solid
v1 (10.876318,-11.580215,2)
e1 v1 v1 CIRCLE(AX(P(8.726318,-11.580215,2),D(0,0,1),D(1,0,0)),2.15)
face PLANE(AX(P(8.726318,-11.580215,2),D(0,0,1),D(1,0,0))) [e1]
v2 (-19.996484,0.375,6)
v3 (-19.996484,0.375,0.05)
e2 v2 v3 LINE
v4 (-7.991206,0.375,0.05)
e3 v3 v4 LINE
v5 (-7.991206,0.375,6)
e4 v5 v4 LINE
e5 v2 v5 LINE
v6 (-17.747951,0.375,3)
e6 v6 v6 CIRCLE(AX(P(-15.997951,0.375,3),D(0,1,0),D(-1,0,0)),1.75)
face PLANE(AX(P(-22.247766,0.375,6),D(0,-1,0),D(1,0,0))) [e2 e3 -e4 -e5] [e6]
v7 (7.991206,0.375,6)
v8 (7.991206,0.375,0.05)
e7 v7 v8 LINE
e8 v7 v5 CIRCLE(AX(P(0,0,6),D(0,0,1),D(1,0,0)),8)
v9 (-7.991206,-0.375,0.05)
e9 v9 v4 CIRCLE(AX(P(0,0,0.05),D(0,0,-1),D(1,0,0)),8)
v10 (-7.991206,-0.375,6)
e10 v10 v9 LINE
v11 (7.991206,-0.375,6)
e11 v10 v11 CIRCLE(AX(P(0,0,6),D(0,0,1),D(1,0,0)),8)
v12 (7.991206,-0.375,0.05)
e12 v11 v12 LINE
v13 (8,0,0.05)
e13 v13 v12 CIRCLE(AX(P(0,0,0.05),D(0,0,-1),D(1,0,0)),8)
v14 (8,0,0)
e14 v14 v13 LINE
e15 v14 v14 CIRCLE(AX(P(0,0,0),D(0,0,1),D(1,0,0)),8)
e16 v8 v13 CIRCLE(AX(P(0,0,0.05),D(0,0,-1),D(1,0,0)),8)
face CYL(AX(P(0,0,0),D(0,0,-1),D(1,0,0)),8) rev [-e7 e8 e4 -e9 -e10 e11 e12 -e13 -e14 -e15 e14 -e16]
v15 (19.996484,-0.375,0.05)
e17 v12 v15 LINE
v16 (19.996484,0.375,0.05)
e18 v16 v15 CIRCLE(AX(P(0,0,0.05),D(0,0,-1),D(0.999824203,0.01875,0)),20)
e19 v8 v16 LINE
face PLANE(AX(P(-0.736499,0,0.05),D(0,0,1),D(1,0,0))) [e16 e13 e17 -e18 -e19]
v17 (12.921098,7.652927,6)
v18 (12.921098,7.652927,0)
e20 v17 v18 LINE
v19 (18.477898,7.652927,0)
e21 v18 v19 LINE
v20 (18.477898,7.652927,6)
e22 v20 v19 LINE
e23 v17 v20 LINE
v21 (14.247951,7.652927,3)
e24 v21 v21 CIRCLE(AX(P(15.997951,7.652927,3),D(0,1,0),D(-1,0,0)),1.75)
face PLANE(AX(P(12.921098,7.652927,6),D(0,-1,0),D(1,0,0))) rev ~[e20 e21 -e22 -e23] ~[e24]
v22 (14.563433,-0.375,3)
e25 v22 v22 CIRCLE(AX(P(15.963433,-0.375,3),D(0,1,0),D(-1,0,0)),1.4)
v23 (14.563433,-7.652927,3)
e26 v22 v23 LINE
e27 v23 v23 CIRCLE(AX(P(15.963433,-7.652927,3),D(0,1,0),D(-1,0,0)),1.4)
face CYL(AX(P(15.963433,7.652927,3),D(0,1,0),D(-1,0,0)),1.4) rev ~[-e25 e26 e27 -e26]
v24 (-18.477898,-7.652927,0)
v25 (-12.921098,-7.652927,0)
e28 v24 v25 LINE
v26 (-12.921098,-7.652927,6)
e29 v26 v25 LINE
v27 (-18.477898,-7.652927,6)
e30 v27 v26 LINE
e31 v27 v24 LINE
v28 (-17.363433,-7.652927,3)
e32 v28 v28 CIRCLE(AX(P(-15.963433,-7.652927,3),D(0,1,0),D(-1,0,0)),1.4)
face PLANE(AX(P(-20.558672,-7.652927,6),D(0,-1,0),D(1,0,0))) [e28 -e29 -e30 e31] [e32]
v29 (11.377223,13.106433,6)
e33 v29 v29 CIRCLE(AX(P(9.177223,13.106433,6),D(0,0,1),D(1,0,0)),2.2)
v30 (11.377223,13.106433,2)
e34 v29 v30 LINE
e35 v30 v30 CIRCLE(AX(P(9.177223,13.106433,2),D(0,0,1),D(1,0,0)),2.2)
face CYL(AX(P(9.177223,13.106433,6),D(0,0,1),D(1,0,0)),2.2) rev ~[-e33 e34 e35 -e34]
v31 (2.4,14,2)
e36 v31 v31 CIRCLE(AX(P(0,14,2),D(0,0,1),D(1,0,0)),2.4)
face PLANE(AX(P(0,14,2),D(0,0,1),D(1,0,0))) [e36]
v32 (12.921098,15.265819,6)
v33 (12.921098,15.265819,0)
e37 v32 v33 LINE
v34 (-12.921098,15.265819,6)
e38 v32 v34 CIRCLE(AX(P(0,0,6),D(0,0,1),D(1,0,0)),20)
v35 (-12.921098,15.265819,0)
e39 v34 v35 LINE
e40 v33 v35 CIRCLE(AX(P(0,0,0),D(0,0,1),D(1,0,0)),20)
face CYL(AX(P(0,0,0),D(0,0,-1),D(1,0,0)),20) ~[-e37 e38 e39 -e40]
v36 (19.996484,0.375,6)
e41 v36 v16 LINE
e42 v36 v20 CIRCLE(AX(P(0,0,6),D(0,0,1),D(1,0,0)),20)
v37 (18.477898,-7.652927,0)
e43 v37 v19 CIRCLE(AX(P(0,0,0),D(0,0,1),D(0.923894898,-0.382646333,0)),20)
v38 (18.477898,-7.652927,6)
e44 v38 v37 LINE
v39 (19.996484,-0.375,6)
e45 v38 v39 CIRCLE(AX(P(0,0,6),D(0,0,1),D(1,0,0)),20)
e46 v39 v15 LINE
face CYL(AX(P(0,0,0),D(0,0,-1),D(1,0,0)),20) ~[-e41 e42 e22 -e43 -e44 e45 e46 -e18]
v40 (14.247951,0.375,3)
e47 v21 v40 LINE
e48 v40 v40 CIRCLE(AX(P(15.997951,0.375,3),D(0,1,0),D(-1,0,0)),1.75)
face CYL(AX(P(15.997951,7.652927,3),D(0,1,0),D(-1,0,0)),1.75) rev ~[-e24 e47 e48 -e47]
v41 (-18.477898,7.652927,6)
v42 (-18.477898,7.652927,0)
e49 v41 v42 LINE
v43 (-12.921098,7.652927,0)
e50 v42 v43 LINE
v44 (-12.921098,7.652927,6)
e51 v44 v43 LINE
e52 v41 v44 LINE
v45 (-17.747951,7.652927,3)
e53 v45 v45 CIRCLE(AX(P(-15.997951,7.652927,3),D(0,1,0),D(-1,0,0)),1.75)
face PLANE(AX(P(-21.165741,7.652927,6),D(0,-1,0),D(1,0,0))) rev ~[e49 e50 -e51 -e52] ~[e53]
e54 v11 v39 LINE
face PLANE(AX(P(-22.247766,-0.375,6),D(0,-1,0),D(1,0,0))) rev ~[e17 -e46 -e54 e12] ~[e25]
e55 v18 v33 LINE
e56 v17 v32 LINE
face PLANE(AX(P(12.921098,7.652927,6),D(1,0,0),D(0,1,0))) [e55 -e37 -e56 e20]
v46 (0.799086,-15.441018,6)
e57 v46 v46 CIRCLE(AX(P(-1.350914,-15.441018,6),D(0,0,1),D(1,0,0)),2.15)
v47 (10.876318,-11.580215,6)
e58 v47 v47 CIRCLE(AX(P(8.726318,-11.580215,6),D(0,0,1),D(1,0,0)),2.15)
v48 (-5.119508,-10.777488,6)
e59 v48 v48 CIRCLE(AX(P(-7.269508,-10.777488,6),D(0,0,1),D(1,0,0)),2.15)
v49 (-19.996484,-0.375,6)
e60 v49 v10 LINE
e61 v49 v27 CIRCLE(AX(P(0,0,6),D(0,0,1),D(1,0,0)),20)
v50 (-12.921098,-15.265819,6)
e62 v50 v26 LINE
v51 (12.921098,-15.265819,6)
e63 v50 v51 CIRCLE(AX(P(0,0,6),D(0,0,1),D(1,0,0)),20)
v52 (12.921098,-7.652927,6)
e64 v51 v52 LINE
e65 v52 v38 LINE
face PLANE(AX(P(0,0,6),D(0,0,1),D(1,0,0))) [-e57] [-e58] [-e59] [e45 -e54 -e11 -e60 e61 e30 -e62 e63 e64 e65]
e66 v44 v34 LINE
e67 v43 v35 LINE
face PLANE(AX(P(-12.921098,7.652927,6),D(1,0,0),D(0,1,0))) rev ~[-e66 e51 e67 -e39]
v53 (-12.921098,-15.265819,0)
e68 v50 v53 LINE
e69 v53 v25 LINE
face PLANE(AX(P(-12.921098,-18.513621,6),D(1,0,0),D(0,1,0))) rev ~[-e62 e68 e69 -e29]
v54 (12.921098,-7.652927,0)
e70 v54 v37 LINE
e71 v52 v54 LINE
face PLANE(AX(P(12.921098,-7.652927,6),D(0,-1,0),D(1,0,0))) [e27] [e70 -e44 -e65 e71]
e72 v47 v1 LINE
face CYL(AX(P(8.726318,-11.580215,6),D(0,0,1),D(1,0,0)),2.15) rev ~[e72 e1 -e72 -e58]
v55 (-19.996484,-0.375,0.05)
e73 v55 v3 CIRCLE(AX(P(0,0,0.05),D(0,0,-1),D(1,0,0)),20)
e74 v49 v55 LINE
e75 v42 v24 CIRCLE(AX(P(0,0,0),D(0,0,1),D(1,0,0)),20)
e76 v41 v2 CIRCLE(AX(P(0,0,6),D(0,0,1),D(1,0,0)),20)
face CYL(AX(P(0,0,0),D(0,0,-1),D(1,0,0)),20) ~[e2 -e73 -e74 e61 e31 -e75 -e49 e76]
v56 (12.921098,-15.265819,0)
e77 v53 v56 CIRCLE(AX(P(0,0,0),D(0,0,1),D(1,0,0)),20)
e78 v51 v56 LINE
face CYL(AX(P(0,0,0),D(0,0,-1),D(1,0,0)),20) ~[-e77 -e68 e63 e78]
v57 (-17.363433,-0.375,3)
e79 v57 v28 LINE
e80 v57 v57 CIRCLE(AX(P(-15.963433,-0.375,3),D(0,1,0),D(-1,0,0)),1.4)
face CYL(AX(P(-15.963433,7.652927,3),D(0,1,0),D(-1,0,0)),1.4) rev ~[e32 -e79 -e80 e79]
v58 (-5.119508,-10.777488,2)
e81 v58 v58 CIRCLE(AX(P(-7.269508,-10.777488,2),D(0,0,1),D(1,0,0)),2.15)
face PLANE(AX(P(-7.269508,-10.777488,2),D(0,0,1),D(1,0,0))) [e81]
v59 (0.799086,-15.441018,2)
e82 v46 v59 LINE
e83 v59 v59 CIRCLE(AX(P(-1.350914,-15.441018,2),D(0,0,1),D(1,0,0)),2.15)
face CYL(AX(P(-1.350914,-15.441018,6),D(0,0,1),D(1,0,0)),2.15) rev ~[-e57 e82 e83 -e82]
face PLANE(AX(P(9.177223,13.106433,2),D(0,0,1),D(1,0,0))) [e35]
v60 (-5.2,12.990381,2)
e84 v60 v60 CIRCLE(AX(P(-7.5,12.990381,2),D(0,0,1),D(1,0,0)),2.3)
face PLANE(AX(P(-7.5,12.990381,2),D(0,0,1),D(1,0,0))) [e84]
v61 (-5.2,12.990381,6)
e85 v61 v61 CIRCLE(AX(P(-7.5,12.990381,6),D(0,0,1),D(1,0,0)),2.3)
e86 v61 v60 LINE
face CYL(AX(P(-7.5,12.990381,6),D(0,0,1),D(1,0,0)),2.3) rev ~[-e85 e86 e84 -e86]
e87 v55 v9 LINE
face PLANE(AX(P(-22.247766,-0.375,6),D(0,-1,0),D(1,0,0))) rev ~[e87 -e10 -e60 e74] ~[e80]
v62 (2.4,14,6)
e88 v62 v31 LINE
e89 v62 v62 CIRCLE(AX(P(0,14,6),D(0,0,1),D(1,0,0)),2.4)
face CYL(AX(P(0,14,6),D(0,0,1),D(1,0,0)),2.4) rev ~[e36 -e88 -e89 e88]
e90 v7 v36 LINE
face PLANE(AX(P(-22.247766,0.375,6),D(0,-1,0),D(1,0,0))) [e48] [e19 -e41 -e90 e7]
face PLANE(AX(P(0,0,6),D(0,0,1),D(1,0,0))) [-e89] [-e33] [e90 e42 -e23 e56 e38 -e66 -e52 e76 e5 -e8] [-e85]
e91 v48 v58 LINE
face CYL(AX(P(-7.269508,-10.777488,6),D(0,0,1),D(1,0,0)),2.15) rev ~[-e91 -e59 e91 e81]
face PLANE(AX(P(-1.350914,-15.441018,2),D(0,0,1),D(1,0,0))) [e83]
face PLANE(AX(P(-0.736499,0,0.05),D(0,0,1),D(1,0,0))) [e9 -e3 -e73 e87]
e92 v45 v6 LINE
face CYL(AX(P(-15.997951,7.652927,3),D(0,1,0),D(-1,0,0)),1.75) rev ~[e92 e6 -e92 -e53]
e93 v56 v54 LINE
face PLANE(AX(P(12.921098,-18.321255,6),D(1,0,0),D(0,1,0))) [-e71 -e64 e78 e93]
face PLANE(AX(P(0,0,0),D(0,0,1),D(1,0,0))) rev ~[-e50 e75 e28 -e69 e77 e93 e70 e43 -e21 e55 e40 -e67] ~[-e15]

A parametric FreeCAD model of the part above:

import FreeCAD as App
import Part
import Sketcher
Q = App.Units.Quantity


def add_polygon(sketch, points):
    """Adds a closed chain of lines whose ends are joined by coincident constraints."""
    first, n = sketch.GeometryCount, len(points)
    for a, b in zip(points, points[1:] + points[:1]):
        sketch.addGeometry(Part.LineSegment(App.Vector(*a, 0), App.Vector(*b, 0)), False)
    for i in range(n):
        sketch.addConstraint(Sketcher.Constraint("Coincident", first + i, 2, first + (i + 1) % n, 1))

doc = App.newDocument("Part")
body = doc.addObject("PartDesign::Body", "Body")

# Sketch on XY plane
sketch1 = body.newObject("Sketcher::SketchObject", "Sketch")
sketch1.AttachmentSupport = (doc.getObject("XY_Plane"), [""])
sketch1.MapMode = "FlatFace"
sketch1.addGeometry([
    Part.Circle(App.Vector(0, 0, 0), App.Vector(0, 0, 1), 20),
    Part.Circle(App.Vector(0, 0, 0), App.Vector(0, 0, 1), 8),
], False)
sketch1.addConstraint([
    Sketcher.Constraint("Coincident", 0, 3, -1, 1),
    Sketcher.Constraint("Coincident", 1, 3, -1, 1),
    Sketcher.Constraint("Diameter", 0, Q("40 mm")),
    Sketcher.Constraint("Diameter", 1, Q("16 mm")),
])
pad1 = body.newObject("PartDesign::Pad", "Pad")
pad1.Profile = sketch1
pad1.Length = 6

# Sketch on XY plane
sketch2 = body.newObject("Sketcher::SketchObject", "Sketch001")
sketch2.AttachmentSupport = (doc.getObject("XY_Plane"), [""])
sketch2.MapMode = "FlatFace"
sketch2.AttachmentOffset = App.Placement(App.Vector(0, 0, 6), App.Rotation())
sketch2.addGeometry([
    Part.Circle(App.Vector(0, 14, 0), App.Vector(0, 0, 1), 2.4),  # 0
    Part.Circle(App.Vector(-7.5, 12.990381, 0), App.Vector(0, 0, 1), 2.3),  # 1
    Part.Circle(App.Vector(9.177223, 13.106433, 0), App.Vector(0, 0, 1), 2.2),  # 2
    Part.Circle(App.Vector(8.726318, -11.580215, 0), App.Vector(0, 0, 1), 2.15),  # 3
    Part.Circle(App.Vector(-1.350914, -15.441018, 0), App.Vector(0, 0, 1), 2.15),  # 4
    Part.Circle(App.Vector(-7.269508, -10.777488, 0), App.Vector(0, 0, 1), 2.15),  # 5
], False)
sketch2.addConstraint([
    Sketcher.Constraint("Equal", 3, 4),
    Sketcher.Constraint("Equal", 4, 5),
    Sketcher.Constraint("PointOnObject", 0, 3, -2),
    Sketcher.Constraint("Diameter", 0, Q("4.8 mm")),
    Sketcher.Constraint("Diameter", 1, Q("4.6 mm")),
    Sketcher.Constraint("Diameter", 2, Q("4.4 mm")),
    Sketcher.Constraint("Diameter", 3, Q("4.3 mm")),
    Sketcher.Constraint("DistanceY", -1, 1, 0, 3, Q("14 mm")),
    Sketcher.Constraint("DistanceX", 1, 3, -1, 1, Q("7.5 mm")),
    Sketcher.Constraint("DistanceY", 4, 3, 1, 3, Q("28.431399 mm")),
    Sketcher.Constraint("DistanceY", -1, 1, 1, 3, Q("12.990381 mm")),
    Sketcher.Constraint("DistanceY", 5, 3, -1, 1, Q("10.777488 mm")),
    Sketcher.Constraint("DistanceY", 1, 3, 2, 3, Q("0.116052 mm")),
    Sketcher.Constraint("DistanceX", 4, 3, 3, 3, Q("10.077232 mm")),
    Sketcher.Constraint("DistanceX", 5, 3, 2, 3, Q("16.446731 mm")),
    Sketcher.Constraint("DistanceX", -1, 1, 2, 3, Q("9.177223 mm")),
    Sketcher.Constraint("DistanceX", -1, 1, 3, 3, Q("8.726318 mm")),
    Sketcher.Constraint("DistanceY", 3, 3, -1, 1, Q("11.580215 mm")),
])
pocket1 = body.newObject("PartDesign::Pocket", "Pocket")
pocket1.Profile = sketch2
pocket1.Length = 4

# Sketch on XY plane
sketch3 = body.newObject("Sketcher::SketchObject", "Sketch002")
sketch3.AttachmentSupport = (doc.getObject("XY_Plane"), [""])
sketch3.MapMode = "FlatFace"
sketch3.AttachmentOffset = App.Placement(App.Vector(0, 0, 6), App.Rotation())
add_polygon(sketch3, [(-22.247766, 0.375), (-22.247766, -0.375), (20.774767, -0.375), (20.774767, 0.375)])  # lines 0-3
sketch3.addConstraint([
    Sketcher.Constraint("Vertical", 0),
    Sketcher.Constraint("Horizontal", 1),
    Sketcher.Constraint("Vertical", 2),
    Sketcher.Constraint("Horizontal", 3),
    Sketcher.Constraint("DistanceY", 0, 2, 0, 1, Q("0.75 mm")),
    Sketcher.Constraint("DistanceY", 0, 2, -1, 1, Q("0.375 mm")),
    Sketcher.Constraint("DistanceX", 1, 1, 1, 2, Q("43.022533 mm")),
    Sketcher.Constraint("DistanceX", 0, 2, -1, 1, Q("22.247766 mm")),
])
pocket2 = body.newObject("PartDesign::Pocket", "Pocket001")
pocket2.Profile = sketch3
pocket2.Length = 5.95

# Sketch on XY plane
sketch4 = body.newObject("Sketcher::SketchObject", "Sketch003")
sketch4.AttachmentSupport = (doc.getObject("XY_Plane"), [""])
sketch4.MapMode = "FlatFace"
sketch4.AttachmentOffset = App.Placement(App.Vector(0, 0, 6), App.Rotation())
add_polygon(sketch4, [(-20.558672, -7.652927), (-20.558672, -18.513621), (-12.921098, -18.513621), (-12.921098, -7.652927)])  # lines 0-3
add_polygon(sketch4, [(-21.165741, 19.708082), (-21.165741, 7.652927), (-12.921098, 7.652927), (-12.921098, 19.708082)])  # lines 4-7
add_polygon(sketch4, [(12.921098, 18.594162), (12.921098, 7.652927), (21.451014, 7.652927), (21.451014, 18.594162)])  # lines 8-11
add_polygon(sketch4, [(12.921098, -7.652927), (12.921098, -18.321255), (24.753971, -18.321255), (24.753971, -7.652927)])  # lines 12-15
sketch4.addConstraint([
    Sketcher.Constraint("Vertical", 0),
    Sketcher.Constraint("Horizontal", 1),
    Sketcher.Constraint("Vertical", 2),
    Sketcher.Constraint("Horizontal", 3),
    Sketcher.Constraint("Vertical", 4),
    Sketcher.Constraint("Horizontal", 5),
    Sketcher.Constraint("Vertical", 6),
    Sketcher.Constraint("Horizontal", 7),
    Sketcher.Constraint("Vertical", 8),
    Sketcher.Constraint("Horizontal", 9),
    Sketcher.Constraint("Vertical", 10),
    Sketcher.Constraint("Horizontal", 11),
    Sketcher.Constraint("Vertical", 12),
    Sketcher.Constraint("Horizontal", 13),
    Sketcher.Constraint("Vertical", 14),
    Sketcher.Constraint("Horizontal", 15),
    Sketcher.Constraint("Symmetric", 2, 2, 8, 2, -1, 1),
    Sketcher.Constraint("Symmetric", 5, 2, 15, 2, -1, 1),
    Sketcher.Constraint("Symmetric", 5, 2, 8, 2, -2),
    Sketcher.Constraint("DistanceY", 12, 2, 12, 1, Q("10.668328 mm")),
    Sketcher.Constraint("DistanceX", 1, 1, 1, 2, Q("7.637574 mm")),
    Sketcher.Constraint("DistanceX", 5, 1, 5, 2, Q("8.244643 mm")),
    Sketcher.Constraint("DistanceX", 9, 1, 9, 2, Q("8.529916 mm")),
    Sketcher.Constraint("DistanceX", 13, 1, 13, 2, Q("11.832873 mm")),
    Sketcher.Constraint("DistanceY", 0, 2, 0, 1, Q("10.860694 mm")),
    Sketcher.Constraint("DistanceY", 4, 2, 4, 1, Q("12.055155 mm")),
    Sketcher.Constraint("DistanceY", 8, 2, 8, 1, Q("10.941235 mm")),
    Sketcher.Constraint("DistanceY", 0, 2, -1, 1, Q("18.513621 mm")),
    Sketcher.Constraint("DistanceX", 4, 2, -1, 1, Q("21.165741 mm")),
])
pocket3 = body.newObject("PartDesign::Pocket", "Pocket002")
pocket3.Profile = sketch4
pocket3.Type = "ThroughAll"

# Sketch on XZ plane
sketch5 = body.newObject("Sketcher::SketchObject", "Sketch004")
sketch5.AttachmentSupport = (doc.getObject("XZ_Plane"), [""])
sketch5.MapMode = "FlatFace"
sketch5.AttachmentOffset = App.Placement(App.Vector(0, 0, -7.652927), App.Rotation())
sketch5.addGeometry([
    Part.Circle(App.Vector(15.963433, 3, 0), App.Vector(0, 0, 1), 1.4),
    Part.Circle(App.Vector(-15.963433, 3, 0), App.Vector(0, 0, 1), 1.4),
], False)
sketch5.addConstraint([
    Sketcher.Constraint("Equal", 0, 1),
    Sketcher.Constraint("Symmetric", 0, 3, 1, 3, -2),
    Sketcher.Constraint("Diameter", 0, Q("2.8 mm")),
    Sketcher.Constraint("DistanceY", -1, 1, 0, 3, Q("3 mm")),
    Sketcher.Constraint("DistanceX", -1, 1, 0, 3, Q("15.963433 mm")),
])
pocket4 = body.newObject("PartDesign::Pocket", "Pocket003")
pocket4.Profile = sketch5
pocket4.Type = "ThroughAll"
pocket4.Reversed = True

# Sketch on XZ plane
sketch6 = body.newObject("Sketcher::SketchObject", "Sketch005")
sketch6.AttachmentSupport = (doc.getObject("XZ_Plane"), [""])
sketch6.MapMode = "FlatFace"
sketch6.AttachmentOffset = App.Placement(App.Vector(0, 0, -7.652927), App.Rotation())
sketch6.addGeometry([
    Part.Circle(App.Vector(15.997951, 3, 0), App.Vector(0, 0, 1), 1.75),
    Part.Circle(App.Vector(-15.997951, 3, 0), App.Vector(0, 0, 1), 1.75),
], False)
sketch6.addConstraint([
    Sketcher.Constraint("Equal", 0, 1),
    Sketcher.Constraint("Symmetric", 0, 3, 1, 3, -2),
    Sketcher.Constraint("Diameter", 0, Q("3.5 mm")),
    Sketcher.Constraint("DistanceY", -1, 1, 0, 3, Q("3 mm")),
    Sketcher.Constraint("DistanceX", -1, 1, 0, 3, Q("15.997951 mm")),
])
pocket5 = body.newObject("PartDesign::Pocket", "Pocket004")
pocket5.Profile = sketch6
pocket5.Length = 8
pocket5.Reversed = True

doc.recompute()
